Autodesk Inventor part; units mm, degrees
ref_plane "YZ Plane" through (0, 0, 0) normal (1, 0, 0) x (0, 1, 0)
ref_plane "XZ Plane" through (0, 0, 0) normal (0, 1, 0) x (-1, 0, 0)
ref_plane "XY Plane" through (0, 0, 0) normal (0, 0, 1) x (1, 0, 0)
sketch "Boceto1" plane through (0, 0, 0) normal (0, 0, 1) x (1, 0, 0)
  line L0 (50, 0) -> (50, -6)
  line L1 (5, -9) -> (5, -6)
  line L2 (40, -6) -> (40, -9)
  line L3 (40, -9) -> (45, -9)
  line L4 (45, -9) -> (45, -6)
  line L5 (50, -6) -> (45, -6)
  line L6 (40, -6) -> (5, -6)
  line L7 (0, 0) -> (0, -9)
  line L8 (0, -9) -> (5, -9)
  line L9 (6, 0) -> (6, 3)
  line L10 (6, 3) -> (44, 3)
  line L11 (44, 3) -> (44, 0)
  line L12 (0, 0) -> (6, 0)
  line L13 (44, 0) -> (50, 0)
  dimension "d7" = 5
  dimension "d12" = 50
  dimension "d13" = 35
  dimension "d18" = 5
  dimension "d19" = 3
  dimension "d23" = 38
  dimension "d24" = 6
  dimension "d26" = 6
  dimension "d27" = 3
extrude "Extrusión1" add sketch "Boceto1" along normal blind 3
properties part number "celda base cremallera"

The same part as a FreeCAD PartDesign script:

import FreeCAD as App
import Part
import Sketcher
Q = App.Units.Quantity


def add_polygon(sketch, points):
    """Adds a closed chain of lines whose ends are joined by coincident constraints."""
    first, n = sketch.GeometryCount, len(points)
    for a, b in zip(points, points[1:] + points[:1]):
        sketch.addGeometry(Part.LineSegment(App.Vector(*a, 0), App.Vector(*b, 0)), False)
    for i in range(n):
        sketch.addConstraint(Sketcher.Constraint("Coincident", first + i, 2, first + (i + 1) % n, 1))

doc = App.newDocument("Part")
body = doc.addObject("PartDesign::Body", "Body")

# Sketch on XY plane
sketch1 = body.newObject("Sketcher::SketchObject", "Sketch")
sketch1.AttachmentSupport = (doc.getObject("XY_Plane"), [""])
sketch1.MapMode = "FlatFace"
add_polygon(sketch1, [(50, -6), (50, 0), (44, 0), (44, 3), (6, 3), (6, 0), (0, 0), (0, -9), (5, -9), (5, -6), (40, -6), (40, -9), (45, -9), (45, -6)])  # lines 0-13
sketch1.addConstraint(Sketcher.Constraint("Vertical", 0))
sketch1.addConstraint(Sketcher.Constraint("Horizontal", 1))
sketch1.addConstraint(Sketcher.Constraint("Vertical", 2))
sketch1.addConstraint(Sketcher.Constraint("Horizontal", 3))
sketch1.addConstraint(Sketcher.Constraint("Vertical", 4))
sketch1.addConstraint(Sketcher.Constraint("Horizontal", 5))
sketch1.addConstraint(Sketcher.Constraint("Vertical", 6))
sketch1.addConstraint(Sketcher.Constraint("Horizontal", 7))
sketch1.addConstraint(Sketcher.Constraint("Vertical", 8))
sketch1.addConstraint(Sketcher.Constraint("Horizontal", 9))
sketch1.addConstraint(Sketcher.Constraint("Vertical", 10))
sketch1.addConstraint(Sketcher.Constraint("Horizontal", 11))
sketch1.addConstraint(Sketcher.Constraint("Vertical", 12))
sketch1.addConstraint(Sketcher.Constraint("Horizontal", 13))
sketch1.addConstraint(Sketcher.Constraint("Coincident", 5, 2, -1, 1))
sketch1.addConstraint(Sketcher.Constraint("PointOnObject", 0, 2, -1))
sketch1.addConstraint(Sketcher.Constraint("Horizontal", 7, 2, 10, 2))
sketch1.addConstraint(Sketcher.Constraint("Horizontal", 9, 2, 12, 2))
sketch1.addConstraint(Sketcher.Constraint("Equal", 1, 5))
sketch1.addConstraint(Sketcher.Constraint("Equal", 7, 11))
sketch1.addConstraint(Sketcher.Constraint("Equal", 11, 13))
sketch1.addConstraint(Sketcher.Constraint("Equal", 5, 0))
sketch1.addConstraint(Sketcher.Constraint("Equal", 4, 8))
sketch1.addConstraint(Sketcher.Constraint("DistanceX", 1, 2, 1, 1, Q("6 mm")))
sketch1.addConstraint(Sketcher.Constraint("DistanceX", 3, 2, 3, 1, Q("38 mm")))
sketch1.addConstraint(Sketcher.Constraint("DistanceX", 7, 1, 7, 2, Q("5 mm")))
sketch1.addConstraint(Sketcher.Constraint("DistanceY", 2, 1, 2, 2, Q("3 mm")))
pad1 = body.newObject("PartDesign::Pad", "Pad")
pad1.Profile = sketch1
pad1.Length = 3

doc.recompute()
